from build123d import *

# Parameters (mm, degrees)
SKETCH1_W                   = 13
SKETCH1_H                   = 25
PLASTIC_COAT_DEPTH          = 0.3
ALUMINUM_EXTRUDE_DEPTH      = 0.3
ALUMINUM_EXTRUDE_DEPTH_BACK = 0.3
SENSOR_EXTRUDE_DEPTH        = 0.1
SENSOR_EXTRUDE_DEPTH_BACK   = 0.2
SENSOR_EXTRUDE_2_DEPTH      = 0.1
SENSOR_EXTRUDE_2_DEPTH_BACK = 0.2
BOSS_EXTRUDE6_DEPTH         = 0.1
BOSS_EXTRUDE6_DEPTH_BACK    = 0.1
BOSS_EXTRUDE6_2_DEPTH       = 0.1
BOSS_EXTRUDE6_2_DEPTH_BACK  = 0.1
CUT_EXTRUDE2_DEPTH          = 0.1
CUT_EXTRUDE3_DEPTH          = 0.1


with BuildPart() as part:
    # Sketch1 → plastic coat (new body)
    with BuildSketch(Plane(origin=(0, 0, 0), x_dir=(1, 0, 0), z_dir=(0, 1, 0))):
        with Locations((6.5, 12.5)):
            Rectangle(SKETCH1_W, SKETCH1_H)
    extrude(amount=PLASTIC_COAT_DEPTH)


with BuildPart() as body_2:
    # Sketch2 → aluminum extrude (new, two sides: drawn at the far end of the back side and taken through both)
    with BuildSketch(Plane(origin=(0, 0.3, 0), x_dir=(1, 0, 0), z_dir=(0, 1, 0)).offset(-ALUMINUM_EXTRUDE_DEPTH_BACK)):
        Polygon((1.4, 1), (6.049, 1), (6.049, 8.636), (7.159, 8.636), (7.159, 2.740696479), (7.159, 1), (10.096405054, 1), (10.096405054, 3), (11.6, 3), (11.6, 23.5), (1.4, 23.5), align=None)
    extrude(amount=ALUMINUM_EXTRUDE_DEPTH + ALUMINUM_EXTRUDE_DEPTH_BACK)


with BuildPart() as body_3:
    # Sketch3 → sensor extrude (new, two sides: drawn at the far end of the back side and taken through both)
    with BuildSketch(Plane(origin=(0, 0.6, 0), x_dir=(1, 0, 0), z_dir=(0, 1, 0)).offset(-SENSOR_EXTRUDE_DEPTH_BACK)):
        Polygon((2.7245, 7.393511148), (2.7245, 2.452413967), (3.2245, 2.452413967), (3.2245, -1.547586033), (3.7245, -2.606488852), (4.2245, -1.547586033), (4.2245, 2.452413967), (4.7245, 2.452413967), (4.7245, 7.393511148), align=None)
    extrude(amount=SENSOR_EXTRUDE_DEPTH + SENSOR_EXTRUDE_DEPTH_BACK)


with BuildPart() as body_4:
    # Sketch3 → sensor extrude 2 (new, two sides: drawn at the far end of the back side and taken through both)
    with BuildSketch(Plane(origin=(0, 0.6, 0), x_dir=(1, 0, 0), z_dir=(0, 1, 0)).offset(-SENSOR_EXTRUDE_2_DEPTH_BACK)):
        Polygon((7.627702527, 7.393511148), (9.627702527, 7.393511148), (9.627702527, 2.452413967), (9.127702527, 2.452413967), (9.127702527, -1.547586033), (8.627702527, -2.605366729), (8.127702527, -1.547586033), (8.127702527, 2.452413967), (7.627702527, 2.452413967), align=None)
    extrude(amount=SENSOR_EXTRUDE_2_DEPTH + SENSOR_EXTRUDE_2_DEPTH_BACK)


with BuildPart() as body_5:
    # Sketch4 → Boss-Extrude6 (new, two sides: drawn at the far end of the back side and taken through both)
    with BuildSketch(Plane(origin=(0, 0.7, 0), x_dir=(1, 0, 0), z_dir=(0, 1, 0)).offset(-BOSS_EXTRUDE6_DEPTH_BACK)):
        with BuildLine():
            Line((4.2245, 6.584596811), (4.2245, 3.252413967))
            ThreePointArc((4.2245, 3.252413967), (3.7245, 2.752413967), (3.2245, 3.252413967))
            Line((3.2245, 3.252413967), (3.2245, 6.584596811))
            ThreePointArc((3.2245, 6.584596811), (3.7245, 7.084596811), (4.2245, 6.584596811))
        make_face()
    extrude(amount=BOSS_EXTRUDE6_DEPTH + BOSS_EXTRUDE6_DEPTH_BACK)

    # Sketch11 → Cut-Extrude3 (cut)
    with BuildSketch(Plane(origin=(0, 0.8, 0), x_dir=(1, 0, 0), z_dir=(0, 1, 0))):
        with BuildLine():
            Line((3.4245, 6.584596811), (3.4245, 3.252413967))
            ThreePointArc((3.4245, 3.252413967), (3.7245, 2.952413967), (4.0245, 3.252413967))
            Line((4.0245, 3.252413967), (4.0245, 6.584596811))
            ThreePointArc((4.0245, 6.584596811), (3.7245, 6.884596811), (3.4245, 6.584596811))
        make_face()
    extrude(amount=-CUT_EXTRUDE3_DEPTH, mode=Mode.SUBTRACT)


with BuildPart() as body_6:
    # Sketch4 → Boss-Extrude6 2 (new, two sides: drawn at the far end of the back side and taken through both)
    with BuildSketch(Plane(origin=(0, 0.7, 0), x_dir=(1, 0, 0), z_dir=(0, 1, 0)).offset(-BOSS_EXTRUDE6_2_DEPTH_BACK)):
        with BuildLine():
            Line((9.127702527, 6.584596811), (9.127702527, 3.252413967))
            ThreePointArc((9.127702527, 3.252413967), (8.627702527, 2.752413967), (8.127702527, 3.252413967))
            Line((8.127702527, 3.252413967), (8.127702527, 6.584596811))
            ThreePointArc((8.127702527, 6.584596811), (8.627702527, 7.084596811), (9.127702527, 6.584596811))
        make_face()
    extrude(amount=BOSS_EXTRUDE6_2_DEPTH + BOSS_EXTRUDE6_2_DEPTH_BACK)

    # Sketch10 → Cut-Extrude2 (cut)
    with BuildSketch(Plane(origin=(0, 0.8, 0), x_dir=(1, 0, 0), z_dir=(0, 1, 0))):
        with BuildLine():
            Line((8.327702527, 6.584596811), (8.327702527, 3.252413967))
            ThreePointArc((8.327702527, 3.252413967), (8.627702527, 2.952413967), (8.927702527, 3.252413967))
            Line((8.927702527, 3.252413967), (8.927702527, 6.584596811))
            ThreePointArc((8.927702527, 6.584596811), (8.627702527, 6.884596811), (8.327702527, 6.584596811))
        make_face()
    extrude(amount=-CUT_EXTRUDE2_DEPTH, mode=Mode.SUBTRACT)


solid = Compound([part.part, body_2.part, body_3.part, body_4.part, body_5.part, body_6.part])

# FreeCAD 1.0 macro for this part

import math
import FreeCAD as App
import Part
import Sketcher

V = App.Vector


def add_polygon(sketch, points):
    """Adds a closed chain of lines whose ends are joined by coincident constraints."""
    first, n = sketch.GeometryCount, len(points)
    for a, b in zip(points, points[1:] + points[:1]):
        sketch.addGeometry(Part.LineSegment(App.Vector(*a, 0), App.Vector(*b, 0)), False)
    for i in range(n):
        sketch.addConstraint(Sketcher.Constraint("Coincident", first + i, 2, first + (i + 1) % n, 1))

doc = App.newDocument("Part")
body = doc.addObject("PartDesign::Body", "Body")

sketch1 = body.newObject("Sketcher::SketchObject", "Sketch")
sketch1.AttachmentSupport = (doc.getObject("XZ_Plane"), [""])
sketch1.MapMode = "FlatFace"
add_polygon(sketch1, [(0, -25), (0, 0), (13, 0), (13, -25)])
sketch1.addConstraint(Sketcher.Constraint("Vertical", 0))
sketch1.addConstraint(Sketcher.Constraint("Horizontal", 1))
sketch1.addConstraint(Sketcher.Constraint("Vertical", 2))
sketch1.addConstraint(Sketcher.Constraint("Horizontal", 3))
sketch1.addConstraint(Sketcher.Constraint("Coincident", 0, 2, -1, 1))
sketch1.addConstraint(Sketcher.Constraint("DistanceX", 1, 1, 1, 2, 13.0))
sketch1.addConstraint(Sketcher.Constraint("DistanceY", 0, 1, 0, 2, 25.0))
pad1 = body.newObject("PartDesign::Pad", "Pad")
pad1.Profile = sketch1
pad1.Length = 0.3
pad1.Reversed = True
body2 = doc.addObject("PartDesign::Body", "Body001")

sketch2 = body2.newObject("Sketcher::SketchObject", "Sketch001")
sketch2.AttachmentSupport = (doc.getObject("XZ_Plane001"), [""])
sketch2.MapMode = "FlatFace"
sketch2.AttachmentOffset = App.Placement(V(0, 0, -0.3), App.Rotation())
add_polygon(sketch2, [(1.4, -1), (6, -1), (6, -8.6), (7.2, -8.6), (7.2, -1), (10.1, -1), (10.1, -3), (11.6, -3), (11.6, -23.5), (1.4, -23.5)])
sketch2.addConstraint(Sketcher.Constraint("Horizontal", 0))
sketch2.addConstraint(Sketcher.Constraint("Vertical", 1))
sketch2.addConstraint(Sketcher.Constraint("Horizontal", 2))
sketch2.addConstraint(Sketcher.Constraint("Vertical", 3))
sketch2.addConstraint(Sketcher.Constraint("Horizontal", 4))
sketch2.addConstraint(Sketcher.Constraint("Vertical", 5))
sketch2.addConstraint(Sketcher.Constraint("Horizontal", 6))
sketch2.addConstraint(Sketcher.Constraint("Vertical", 7))
sketch2.addConstraint(Sketcher.Constraint("Horizontal", 8))
sketch2.addConstraint(Sketcher.Constraint("Vertical", 9))
sketch2.addConstraint(Sketcher.Constraint("Horizontal", 0, 2, 3, 2))
sketch2.addConstraint(Sketcher.Constraint("DistanceY", 5, 2, 5, 1, 2.0))
sketch2.addConstraint(Sketcher.Constraint("DistanceX", 8, 2, 8, 1, 10.2))
sketch2.addConstraint(Sketcher.Constraint("DistanceY", 7, 2, 7, 1, 20.5))
sketch2.addConstraint(Sketcher.Constraint("DistanceY", 0, 2, -1, 1, 1.0))
sketch2.addConstraint(Sketcher.Constraint("DistanceX", 2, 1, 2, 2, 1.11))
sketch2.addConstraint(Sketcher.Constraint("DistanceX", -1, 1, 6, 2, 11.6))
sketch2.addConstraint(Sketcher.Constraint("DistanceX", 0, 1, 0, 2, 4.649))
sketch2.addConstraint(Sketcher.Constraint("DistanceY", 1, 2, 1, 1, 7.636))
sketch2.addConstraint(Sketcher.Constraint("DistanceX", 4, 1, 4, 2, 2.937405))
pad2 = body2.newObject("PartDesign::Pad", "Pad001")
pad2.Profile = sketch2
pad2.Type = "TwoLengths"
pad2.Length = 0.3
pad2.Length2 = 0.3
pad2.Reversed = True
body3 = doc.addObject("PartDesign::Body", "Body002")

sketch3 = body3.newObject("Sketcher::SketchObject", "Sketch002")
sketch3.AttachmentSupport = (doc.getObject("XZ_Plane002"), [""])
sketch3.MapMode = "FlatFace"
sketch3.AttachmentOffset = App.Placement(V(0, 0, -0.6), App.Rotation())
add_polygon(sketch3, [(2.7, -7.4), (2.7, -2.5), (3.2, -2.5), (3.2, 1.5), (3.7, 2.6), (4.2, 1.5), (4.2, -2.5), (4.7, -2.5), (4.7, -7.4)])
sketch3.addConstraint(Sketcher.Constraint("Vertical", 0))
sketch3.addConstraint(Sketcher.Constraint("Horizontal", 1))
sketch3.addConstraint(Sketcher.Constraint("Vertical", 2))
sketch3.addConstraint(Sketcher.Constraint("Vertical", 5))
sketch3.addConstraint(Sketcher.Constraint("Horizontal", 6))
sketch3.addConstraint(Sketcher.Constraint("Vertical", 7))
sketch3.addConstraint(Sketcher.Constraint("Horizontal", 8))
sketch3.addConstraint(Sketcher.Constraint("Horizontal", 2, 2, 4, 2))
sketch3.addConstraint(Sketcher.Constraint("Horizontal", 1, 2, 5, 2))
sketch3.addConstraint(Sketcher.Constraint("Equal", 1, 6))
sketch3.addConstraint(Sketcher.Constraint("Equal", 3, 4))
sketch3.addConstraint(Sketcher.Constraint("DistanceX", 8, 2, 8, 1, 2.0))
sketch3.addConstraint(Sketcher.Constraint("DistanceY", 2, 1, 2, 2, 4.0))
sketch3.addConstraint(Sketcher.Constraint("DistanceX", 1, 1, 1, 2, 0.5))
sketch3.addConstraint(Sketcher.Constraint("DistanceX", -1, 1, 0, 2, 2.7245))
sketch3.addConstraint(Sketcher.Constraint("DistanceY", 0, 1, 0, 2, 4.941097))
sketch3.addConstraint(Sketcher.Constraint("DistanceY", -1, 1, 3, 2, 2.606489))
sketch3.addConstraint(Sketcher.Constraint("DistanceY", 7, 2, -1, 1, 7.393511))
pad3 = body3.newObject("PartDesign::Pad", "Pad002")
pad3.Profile = sketch3
pad3.Type = "TwoLengths"
pad3.Length = 0.1
pad3.Length2 = 0.2
pad3.Reversed = True
body4 = doc.addObject("PartDesign::Body", "Body003")

sketch4 = body4.newObject("Sketcher::SketchObject", "Sketch003")
sketch4.AttachmentSupport = (doc.getObject("XZ_Plane003"), [""])
sketch4.MapMode = "FlatFace"
sketch4.AttachmentOffset = App.Placement(V(0, 0, -0.6), App.Rotation())
add_polygon(sketch4, [(9.6, -7.4), (7.6, -7.4), (7.6, -2.5), (8.1, -2.5), (8.1, 1.5), (8.6, 2.6), (9.1, 1.5), (9.1, -2.5), (9.6, -2.5)])
sketch4.addConstraint(Sketcher.Constraint("Horizontal", 0))
sketch4.addConstraint(Sketcher.Constraint("Vertical", 1))
sketch4.addConstraint(Sketcher.Constraint("Horizontal", 2))
sketch4.addConstraint(Sketcher.Constraint("Vertical", 3))
sketch4.addConstraint(Sketcher.Constraint("Vertical", 6))
sketch4.addConstraint(Sketcher.Constraint("Horizontal", 7))
sketch4.addConstraint(Sketcher.Constraint("Vertical", 8))
sketch4.addConstraint(Sketcher.Constraint("Horizontal", 3, 2, 5, 2))
sketch4.addConstraint(Sketcher.Constraint("Horizontal", 2, 2, 6, 2))
sketch4.addConstraint(Sketcher.Constraint("Equal", 2, 7))
sketch4.addConstraint(Sketcher.Constraint("Equal", 4, 5))
sketch4.addConstraint(Sketcher.Constraint("DistanceX", 0, 2, 0, 1, 2.0))
sketch4.addConstraint(Sketcher.Constraint("DistanceY", 3, 1, 3, 2, 4.0))
sketch4.addConstraint(Sketcher.Constraint("DistanceX", 2, 1, 2, 2, 0.5))
sketch4.addConstraint(Sketcher.Constraint("Distance", 4, 1.17))
sketch4.addConstraint(Sketcher.Constraint("DistanceY", 1, 1, 1, 2, 4.941097))
sketch4.addConstraint(Sketcher.Constraint("DistanceY", 0, 2, -1, 1, 7.393511))
sketch4.addConstraint(Sketcher.Constraint("DistanceX", -1, 1, 0, 2, 7.627703))
pad4 = body4.newObject("PartDesign::Pad", "Pad003")
pad4.Profile = sketch4
pad4.Type = "TwoLengths"
pad4.Length = 0.1
pad4.Length2 = 0.2
pad4.Reversed = True
body5 = doc.addObject("PartDesign::Body", "Body004")

sketch5 = body5.newObject("Sketcher::SketchObject", "Sketch004")
sketch5.AttachmentSupport = (doc.getObject("XZ_Plane004"), [""])
sketch5.MapMode = "FlatFace"
sketch5.AttachmentOffset = App.Placement(V(0, 0, -0.7), App.Rotation())
sketch5.addGeometry(Part.LineSegment(V(4.2, -3.3, 0), V(4.2, -6.6, 0)), False)
sketch5.addGeometry(Part.ArcOfCircle(Part.Circle(V(3.7, -6.6, 0), V(0, 0, 1), 0.5), math.radians(180), math.radians(360)), False)
sketch5.addGeometry(Part.LineSegment(V(3.2, -6.6, 0), V(3.2, -3.3, 0)), False)
sketch5.addGeometry(Part.ArcOfCircle(Part.Circle(V(3.7, -3.3, 0), V(0, 0, 1), 0.5), math.radians(0), math.radians(180)), False)
sketch5.addConstraint(Sketcher.Constraint("Tangent", 0, 2, 1, 2))
sketch5.addConstraint(Sketcher.Constraint("Tangent", 1, 1, 2, 1))
sketch5.addConstraint(Sketcher.Constraint("Tangent", 2, 2, 3, 2))
sketch5.addConstraint(Sketcher.Constraint("Tangent", 3, 1, 0, 1))
sketch5.addConstraint(Sketcher.Constraint("Vertical", 0))
sketch5.addConstraint(Sketcher.Constraint("Vertical", 2))
sketch5.addConstraint(Sketcher.Constraint("Radius", 1, 0.5))
sketch5.addConstraint(Sketcher.Constraint("DistanceX", -1, 1, 1, 3, 3.7245))
sketch5.addConstraint(Sketcher.Constraint("DistanceY", 0, 2, 0, 1, 3.332183))
sketch5.addConstraint(Sketcher.Constraint("DistanceY", 1, 3, -1, 1, 6.584597))
pad5 = body5.newObject("PartDesign::Pad", "Pad004")
pad5.Profile = sketch5
pad5.Type = "TwoLengths"
pad5.Length = 0.1
pad5.Length2 = 0.1
pad5.Reversed = True

sketch6 = body5.newObject("Sketcher::SketchObject", "Sketch005")
sketch6.AttachmentSupport = (doc.getObject("XZ_Plane004"), [""])
sketch6.MapMode = "FlatFace"
sketch6.AttachmentOffset = App.Placement(V(0, 0, -0.8), App.Rotation())
sketch6.addGeometry(Part.LineSegment(V(3.42, -6.58, 0), V(3.42, -3.25, 0)), False)
sketch6.addGeometry(Part.ArcOfCircle(Part.Circle(V(3.72, -3.25, 0), V(0, 0, 1), 0.3), math.radians(0), math.radians(180)), False)
sketch6.addGeometry(Part.LineSegment(V(4.02, -3.25, 0), V(4.02, -6.58, 0)), False)
sketch6.addGeometry(Part.ArcOfCircle(Part.Circle(V(3.72, -6.58, 0), V(0, 0, 1), 0.3), math.radians(180), math.radians(360)), False)
sketch6.addConstraint(Sketcher.Constraint("Tangent", 0, 2, 1, 2))
sketch6.addConstraint(Sketcher.Constraint("Tangent", 1, 1, 2, 1))
sketch6.addConstraint(Sketcher.Constraint("Tangent", 2, 2, 3, 2))
sketch6.addConstraint(Sketcher.Constraint("Tangent", 3, 1, 0, 1))
sketch6.addConstraint(Sketcher.Constraint("Vertical", 0))
sketch6.addConstraint(Sketcher.Constraint("Vertical", 2))
sketch6.addConstraint(Sketcher.Constraint("Radius", 1, 0.3))
sketch6.addConstraint(Sketcher.Constraint("DistanceX", -1, 1, 1, 3, 3.7245))
sketch6.addConstraint(Sketcher.Constraint("DistanceY", 0, 1, 0, 2, 3.332183))
sketch6.addConstraint(Sketcher.Constraint("DistanceY", 1, 3, -1, 1, 3.252414))
pocket1 = body5.newObject("PartDesign::Pocket", "Pocket")
pocket1.Profile = sketch6
pocket1.Length = 0.1
pocket1.Reversed = True
body6 = doc.addObject("PartDesign::Body", "Body005")

sketch7 = body6.newObject("Sketcher::SketchObject", "Sketch006")
sketch7.AttachmentSupport = (doc.getObject("XZ_Plane005"), [""])
sketch7.MapMode = "FlatFace"
sketch7.AttachmentOffset = App.Placement(V(0, 0, -0.7), App.Rotation())
sketch7.addGeometry(Part.LineSegment(V(9.1, -3.3, 0), V(9.1, -6.6, 0)), False)
sketch7.addGeometry(Part.ArcOfCircle(Part.Circle(V(8.6, -6.6, 0), V(0, 0, 1), 0.5), math.radians(180), math.radians(360)), False)
sketch7.addGeometry(Part.LineSegment(V(8.1, -6.6, 0), V(8.1, -3.3, 0)), False)
sketch7.addGeometry(Part.ArcOfCircle(Part.Circle(V(8.6, -3.3, 0), V(0, 0, 1), 0.5), math.radians(0), math.radians(180)), False)
sketch7.addConstraint(Sketcher.Constraint("Tangent", 0, 2, 1, 2))
sketch7.addConstraint(Sketcher.Constraint("Tangent", 1, 1, 2, 1))
sketch7.addConstraint(Sketcher.Constraint("Tangent", 2, 2, 3, 2))
sketch7.addConstraint(Sketcher.Constraint("Tangent", 3, 1, 0, 1))
sketch7.addConstraint(Sketcher.Constraint("Vertical", 0))
sketch7.addConstraint(Sketcher.Constraint("Vertical", 2))
sketch7.addConstraint(Sketcher.Constraint("Radius", 1, 0.5))
sketch7.addConstraint(Sketcher.Constraint("DistanceY", 0, 2, 0, 1, 3.332183))
sketch7.addConstraint(Sketcher.Constraint("DistanceX", -1, 1, 1, 3, 8.627703))
sketch7.addConstraint(Sketcher.Constraint("DistanceY", 1, 3, -1, 1, 6.584597))
pad6 = body6.newObject("PartDesign::Pad", "Pad005")
pad6.Profile = sketch7
pad6.Type = "TwoLengths"
pad6.Length = 0.1
pad6.Length2 = 0.1
pad6.Reversed = True

sketch8 = body6.newObject("Sketcher::SketchObject", "Sketch007")
sketch8.AttachmentSupport = (doc.getObject("XZ_Plane005"), [""])
sketch8.MapMode = "FlatFace"
sketch8.AttachmentOffset = App.Placement(V(0, 0, -0.8), App.Rotation())
sketch8.addGeometry(Part.LineSegment(V(8.33, -6.58, 0), V(8.33, -3.25, 0)), False)
sketch8.addGeometry(Part.ArcOfCircle(Part.Circle(V(8.63, -3.25, 0), V(0, 0, 1), 0.3), math.radians(0), math.radians(180)), False)
sketch8.addGeometry(Part.LineSegment(V(8.93, -3.25, 0), V(8.93, -6.58, 0)), False)
sketch8.addGeometry(Part.ArcOfCircle(Part.Circle(V(8.63, -6.58, 0), V(0, 0, 1), 0.3), math.radians(180), math.radians(360)), False)
sketch8.addConstraint(Sketcher.Constraint("Tangent", 0, 2, 1, 2))
sketch8.addConstraint(Sketcher.Constraint("Tangent", 1, 1, 2, 1))
sketch8.addConstraint(Sketcher.Constraint("Tangent", 2, 2, 3, 2))
sketch8.addConstraint(Sketcher.Constraint("Tangent", 3, 1, 0, 1))
sketch8.addConstraint(Sketcher.Constraint("Vertical", 0))
sketch8.addConstraint(Sketcher.Constraint("Vertical", 2))
sketch8.addConstraint(Sketcher.Constraint("Radius", 1, 0.3))
sketch8.addConstraint(Sketcher.Constraint("DistanceY", 0, 1, 0, 2, 3.332183))
sketch8.addConstraint(Sketcher.Constraint("DistanceX", -1, 1, 1, 3, 8.627703))
sketch8.addConstraint(Sketcher.Constraint("DistanceY", 1, 3, -1, 1, 3.252414))
pocket2 = body6.newObject("PartDesign::Pocket", "Pocket001")
pocket2.Profile = sketch8
pocket2.Length = 0.1
pocket2.Reversed = True

doc.recompute()
